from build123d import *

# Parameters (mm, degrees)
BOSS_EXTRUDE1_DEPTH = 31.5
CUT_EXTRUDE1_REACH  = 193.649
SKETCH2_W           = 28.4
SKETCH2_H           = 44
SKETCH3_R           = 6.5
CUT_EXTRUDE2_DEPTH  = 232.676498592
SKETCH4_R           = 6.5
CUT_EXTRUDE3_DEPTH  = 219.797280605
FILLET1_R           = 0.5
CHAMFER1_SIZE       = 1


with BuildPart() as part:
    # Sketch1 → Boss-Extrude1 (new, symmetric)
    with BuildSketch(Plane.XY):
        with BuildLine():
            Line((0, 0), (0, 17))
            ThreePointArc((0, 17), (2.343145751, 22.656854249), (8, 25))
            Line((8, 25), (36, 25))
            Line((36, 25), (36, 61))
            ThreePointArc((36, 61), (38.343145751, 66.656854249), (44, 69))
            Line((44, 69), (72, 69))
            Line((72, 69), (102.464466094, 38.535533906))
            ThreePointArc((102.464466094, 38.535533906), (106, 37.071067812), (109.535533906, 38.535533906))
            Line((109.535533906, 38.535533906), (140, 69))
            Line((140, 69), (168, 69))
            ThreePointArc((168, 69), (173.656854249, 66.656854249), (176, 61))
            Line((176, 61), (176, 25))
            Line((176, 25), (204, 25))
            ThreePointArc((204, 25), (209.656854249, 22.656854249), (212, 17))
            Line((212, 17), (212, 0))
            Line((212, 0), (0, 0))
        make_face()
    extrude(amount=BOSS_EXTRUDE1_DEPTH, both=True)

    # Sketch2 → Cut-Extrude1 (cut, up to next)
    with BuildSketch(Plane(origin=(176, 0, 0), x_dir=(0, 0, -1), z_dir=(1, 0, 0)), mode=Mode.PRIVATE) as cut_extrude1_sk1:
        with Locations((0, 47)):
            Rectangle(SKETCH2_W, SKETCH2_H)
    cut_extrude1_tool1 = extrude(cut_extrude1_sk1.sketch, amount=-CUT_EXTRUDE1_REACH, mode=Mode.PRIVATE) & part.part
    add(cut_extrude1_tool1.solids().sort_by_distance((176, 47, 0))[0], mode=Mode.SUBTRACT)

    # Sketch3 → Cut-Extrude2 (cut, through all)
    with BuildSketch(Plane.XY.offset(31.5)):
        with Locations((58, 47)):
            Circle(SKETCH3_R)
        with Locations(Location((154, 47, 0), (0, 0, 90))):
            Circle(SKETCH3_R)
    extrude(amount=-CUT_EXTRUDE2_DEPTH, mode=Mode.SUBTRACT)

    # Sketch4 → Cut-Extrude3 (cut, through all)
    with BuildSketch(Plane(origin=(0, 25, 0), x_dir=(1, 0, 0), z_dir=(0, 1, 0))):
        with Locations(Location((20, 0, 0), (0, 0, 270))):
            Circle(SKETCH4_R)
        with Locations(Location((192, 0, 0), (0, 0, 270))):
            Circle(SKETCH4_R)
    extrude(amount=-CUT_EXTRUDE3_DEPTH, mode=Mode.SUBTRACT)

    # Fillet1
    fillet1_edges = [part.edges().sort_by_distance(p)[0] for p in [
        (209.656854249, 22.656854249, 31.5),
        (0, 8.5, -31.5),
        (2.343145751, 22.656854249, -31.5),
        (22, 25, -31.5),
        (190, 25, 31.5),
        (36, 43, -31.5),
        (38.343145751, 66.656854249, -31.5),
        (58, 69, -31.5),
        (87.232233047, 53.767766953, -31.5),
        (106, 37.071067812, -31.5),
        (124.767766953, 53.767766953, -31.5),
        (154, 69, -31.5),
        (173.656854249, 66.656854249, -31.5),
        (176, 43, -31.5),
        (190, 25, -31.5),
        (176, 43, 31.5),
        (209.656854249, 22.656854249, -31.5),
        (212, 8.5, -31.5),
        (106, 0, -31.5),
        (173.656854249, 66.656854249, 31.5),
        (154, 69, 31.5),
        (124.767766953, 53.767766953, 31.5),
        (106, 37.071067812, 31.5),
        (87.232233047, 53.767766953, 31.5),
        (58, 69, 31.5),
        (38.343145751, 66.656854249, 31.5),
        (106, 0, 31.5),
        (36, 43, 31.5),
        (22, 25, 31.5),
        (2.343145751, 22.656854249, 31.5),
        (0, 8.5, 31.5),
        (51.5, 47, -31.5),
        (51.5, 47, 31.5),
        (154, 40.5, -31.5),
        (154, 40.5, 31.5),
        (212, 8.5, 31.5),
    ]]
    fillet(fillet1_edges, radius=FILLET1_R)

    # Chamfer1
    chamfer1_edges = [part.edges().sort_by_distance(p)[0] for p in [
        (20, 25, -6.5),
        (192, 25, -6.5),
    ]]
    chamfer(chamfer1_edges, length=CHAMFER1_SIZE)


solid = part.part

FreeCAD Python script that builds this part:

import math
import FreeCAD as App
import Part
import Sketcher

V = App.Vector


def edges_at(feature, points):
    """Names of the edges that pass closest to the given points."""
    edges = feature.Shape.Edges
    near = lambda p: min(range(len(edges)), key=lambda i: edges[i].distToShape(Part.Vertex(*p))[0])
    return sorted({f"Edge{near(p) + 1}" for p in points})


def add_polygon(sketch, points):
    """Adds a closed chain of lines whose ends are joined by coincident constraints."""
    first, n = sketch.GeometryCount, len(points)
    for a, b in zip(points, points[1:] + points[:1]):
        sketch.addGeometry(Part.LineSegment(App.Vector(*a, 0), App.Vector(*b, 0)), False)
    for i in range(n):
        sketch.addConstraint(Sketcher.Constraint("Coincident", first + i, 2, first + (i + 1) % n, 1))

doc = App.newDocument("Part")
params = doc.addObject("Spreadsheet::Sheet", "Params")
for row, (alias, value) in enumerate([
    ("sketch1_radius", "8 mm"),
    ("sketch1_radius2", "5 mm"),
    ("sketch1_width", "212 mm"),
    ("sketch1_width2", "28 mm"),
    ("sketch1_height", "17 mm"),
    ("pad1_length", "63 mm"),
    ("sketch2_width", "44 mm"),
    ("sketch2_height", "28.4 mm"),
    ("pocket1_length", "140 mm"),
    ("sketch3_diameter", "13 mm"),
    ("sketch4_diameter", "13 mm"),
    ("fillet_radius", "0.5 mm"),
    ("chamfer_size", "1 mm"),
], start=1):
    params.set(f"A{row}", alias)
    params.set(f"B{row}", "=" + value)
    params.setAlias(f"B{row}", alias)

body = doc.addObject("PartDesign::Body", "Body")

# Sketch on XY plane
sketch1 = body.newObject("Sketcher::SketchObject", "Sketch")
sketch1.AttachmentSupport = (doc.getObject("XY_Plane"), [""])
sketch1.MapMode = "FlatFace"
sketch1.addGeometry([
    Part.LineSegment(V(0, 17, 0), V(0, 0, 0)),  # 0
    Part.LineSegment(V(0, 0, 0), V(212, 0, 0)),  # 1
    Part.LineSegment(V(212, 0, 0), V(212, 17, 0)),  # 2
    Part.ArcOfCircle(Part.Circle(V(204, 17, 0), V(0, 0, 1), 8), math.radians(0), math.radians(90)),  # 3
    Part.LineSegment(V(204, 25, 0), V(176, 25, 0)),  # 4
    Part.LineSegment(V(176, 25, 0), V(176, 61, 0)),  # 5
    Part.ArcOfCircle(Part.Circle(V(168, 61, 0), V(0, 0, 1), 8), math.radians(0), math.radians(90)),  # 6
    Part.LineSegment(V(168, 69, 0), V(140, 69, 0)),  # 7
    Part.LineSegment(V(140, 69, 0), V(109.535534, 38.535534, 0)),  # 8
    Part.ArcOfCircle(Part.Circle(V(106, 42.071068, 0), V(0, 0, 1), 5), math.radians(-135), math.radians(-45)),  # 9
    Part.LineSegment(V(102.464466, 38.535534, 0), V(72, 69, 0)),  # 10
    Part.LineSegment(V(72, 69, 0), V(44, 69, 0)),  # 11
    Part.ArcOfCircle(Part.Circle(V(44, 61, 0), V(0, 0, 1), 8), math.radians(90), math.radians(180)),  # 12
    Part.LineSegment(V(36, 61, 0), V(36, 25, 0)),  # 13
    Part.LineSegment(V(36, 25, 0), V(8, 25, 0)),  # 14
    Part.ArcOfCircle(Part.Circle(V(8, 17, 0), V(0, 0, 1), 8), math.radians(90), math.radians(180)),  # 15
], False)
sketch1.addConstraint([
    Sketcher.Constraint("Coincident", 0, 2, 1, 1),
    Sketcher.Constraint("Coincident", 1, 2, 2, 1),
    Sketcher.Constraint("Tangent", 2, 2, 3, 1),
    Sketcher.Constraint("Tangent", 3, 2, 4, 1),
    Sketcher.Constraint("Coincident", 4, 2, 5, 1),
    Sketcher.Constraint("Tangent", 5, 2, 6, 1),
    Sketcher.Constraint("Tangent", 6, 2, 7, 1),
    Sketcher.Constraint("Coincident", 7, 2, 8, 1),
    Sketcher.Constraint("Tangent", 8, 2, 9, 2),
    Sketcher.Constraint("Tangent", 9, 1, 10, 1),
    Sketcher.Constraint("Coincident", 10, 2, 11, 1),
    Sketcher.Constraint("Tangent", 11, 2, 12, 1),
    Sketcher.Constraint("Tangent", 12, 2, 13, 1),
    Sketcher.Constraint("Coincident", 13, 2, 14, 1),
    Sketcher.Constraint("Tangent", 14, 2, 15, 1),
    Sketcher.Constraint("Tangent", 15, 2, 0, 1),
    Sketcher.Constraint("Vertical", 0),
    Sketcher.Constraint("Horizontal", 1),
    Sketcher.Constraint("Vertical", 2),
    Sketcher.Constraint("Horizontal", 4),
    Sketcher.Constraint("Vertical", 5),
    Sketcher.Constraint("Horizontal", 7),
    Sketcher.Constraint("Horizontal", 11),
    Sketcher.Constraint("Vertical", 13),
    Sketcher.Constraint("Horizontal", 14),
    Sketcher.Constraint("Coincident", 0, 2, -1, 1),
    Sketcher.Constraint("Equal", 3, 6),
    Sketcher.Constraint("Equal", 6, 12),
    Sketcher.Constraint("Equal", 12, 15),
    Sketcher.Constraint("Perpendicular", 8, 10),
    Sketcher.Constraint("Horizontal", 6, 3, 12, 3),
    Sketcher.Constraint("Horizontal", 3, 3, 15, 3),
    Sketcher.Constraint("Horizontal", 8, 2, 9, 1),
    Sketcher.Constraint("Equal", 4, 7),
    Sketcher.Constraint("Equal", 7, 11),
    Sketcher.Constraint("Equal", 11, 14),
    Sketcher.Constraint("Radius", 3, 8.0),
    Sketcher.Constraint("Radius", 9, 5.0),
    Sketcher.Constraint("DistanceX", 1, 1, 1, 2, 212.0),
    Sketcher.Constraint("DistanceX", 4, 2, 4, 1, 28.0),
    Sketcher.Constraint("DistanceY", 0, 2, 0, 1, 17.0),
    Sketcher.Constraint("DistanceY", 5, 1, 5, 2, 36.0),
])
sketch1.setExpression("Constraints[36]", "Params.sketch1_radius")
sketch1.setExpression("Constraints[37]", "Params.sketch1_radius2")
sketch1.setExpression("Constraints[38]", "Params.sketch1_width")
sketch1.setExpression("Constraints[39]", "Params.sketch1_width2")
sketch1.setExpression("Constraints[40]", "Params.sketch1_height")
pad1 = body.newObject("PartDesign::Pad", "Pad")
pad1.Profile = sketch1
pad1.setExpression("Length", "Params.pad1_length")
pad1.Midplane = True

# Sketch on YZ plane
sketch2 = body.newObject("Sketcher::SketchObject", "Sketch001")
sketch2.AttachmentSupport = (doc.getObject("YZ_Plane"), [""])
sketch2.MapMode = "FlatFace"
sketch2.AttachmentOffset = App.Placement(V(0, 0, 176), App.Rotation())
add_polygon(sketch2, [(69, 14.2), (25, 14.2), (25, -14.2), (69, -14.2)])  # lines 0-3
sketch2.addConstraint([
    Sketcher.Constraint("Horizontal", 0),
    Sketcher.Constraint("Vertical", 1),
    Sketcher.Constraint("Horizontal", 2),
    Sketcher.Constraint("Vertical", 3),
    Sketcher.Constraint("DistanceX", 0, 2, 0, 1, 44.0),
    Sketcher.Constraint("DistanceY", 1, 2, 1, 1, 28.4),
    Sketcher.Constraint("DistanceX", -1, 1, 0, 2, 25.0),
    Sketcher.Constraint("DistanceY", -1, 1, 0, 2, 14.2),
])
sketch2.setExpression("Constraints[8]", "Params.sketch2_width")
sketch2.setExpression("Constraints[9]", "Params.sketch2_height")
pocket1 = body.newObject("PartDesign::Pocket", "Pocket")
pocket1.Profile = sketch2
pocket1.setExpression("Length", "Params.pocket1_length")

# Sketch on XY plane
sketch3 = body.newObject("Sketcher::SketchObject", "Sketch002")
sketch3.AttachmentSupport = (doc.getObject("XY_Plane"), [""])
sketch3.MapMode = "FlatFace"
sketch3.AttachmentOffset = App.Placement(V(0, 0, 31.5), App.Rotation())
sketch3.addGeometry([
    Part.Circle(V(58, 47, 0), V(0, 0, 1), 6.5),
    Part.Circle(V(154, 47, 0), V(0, 0, 1), 6.5),
], False)
sketch3.addConstraint([
    Sketcher.Constraint("Equal", 0, 1),
    Sketcher.Constraint("Horizontal", 0, 3, 1, 3),
    Sketcher.Constraint("Diameter", 0, 13.0),
    Sketcher.Constraint("DistanceX", -1, 1, 0, 3, 58.0),
    Sketcher.Constraint("DistanceY", -1, 1, 0, 3, 47.0),
    Sketcher.Constraint("DistanceX", -1, 1, 1, 3, 154.0),
])
sketch3.setExpression("Constraints[2]", "Params.sketch3_diameter")
pocket2 = body.newObject("PartDesign::Pocket", "Pocket001")
pocket2.Profile = sketch3
pocket2.Type = "ThroughAll"

# Sketch on XZ plane
sketch4 = body.newObject("Sketcher::SketchObject", "Sketch003")
sketch4.AttachmentSupport = (doc.getObject("XZ_Plane"), [""])
sketch4.MapMode = "FlatFace"
sketch4.AttachmentOffset = App.Placement(V(0, 0, -25), App.Rotation())
sketch4.addGeometry([
    Part.Circle(V(20, 0, 0), V(0, 0, 1), 6.5),
    Part.Circle(V(192, 0, 0), V(0, 0, 1), 6.5),
], False)
sketch4.addConstraint([
    Sketcher.Constraint("Equal", 0, 1),
    Sketcher.Constraint("PointOnObject", 0, 3, -1),
    Sketcher.Constraint("PointOnObject", 1, 3, -1),
    Sketcher.Constraint("Diameter", 0, 13.0),
    Sketcher.Constraint("DistanceX", -1, 1, 0, 3, 20.0),
    Sketcher.Constraint("DistanceX", -1, 1, 1, 3, 192.0),
])
sketch4.setExpression("Constraints[3]", "Params.sketch4_diameter")
pocket3 = body.newObject("PartDesign::Pocket", "Pocket002")
pocket3.Profile = sketch4
pocket3.Type = "ThroughAll"
pocket3.Reversed = True
doc.recompute()

fillet = body.newObject("PartDesign::Fillet", "Fillet")
fillet.Base = (pocket3, edges_at(pocket3, [
    (209.657, 22.657, 31.5),
    (0, 8.5, -31.5),
    (2.343, 22.657, -31.5),
    (22, 25, -31.5),
    (190, 25, 31.5),
    (36, 43, -31.5),
    (38.343, 66.657, -31.5),
    (58, 69, -31.5),
    (87.232, 53.768, -31.5),
    (106, 37.071, -31.5),
    (124.768, 53.768, -31.5),
    (154, 69, -31.5),
    (173.657, 66.657, -31.5),
    (176, 43, -31.5),
    (190, 25, -31.5),
    (176, 43, 31.5),
    (209.657, 22.657, -31.5),
    (212, 8.5, -31.5),
    (106, 0, -31.5),
    (173.657, 66.657, 31.5),
    (154, 69, 31.5),
    (124.768, 53.768, 31.5),
    (106, 37.071, 31.5),
    (87.232, 53.768, 31.5),
    (58, 69, 31.5),
    (38.343, 66.657, 31.5),
    (106, 0, 31.5),
    (36, 43, 31.5),
    (22, 25, 31.5),
    (2.343, 22.657, 31.5),
    (0, 8.5, 31.5),
    (51.5, 47, -31.5),
    (51.5, 47, 31.5),
    (154, 40.5, -31.5),
    (154, 40.5, 31.5),
    (212, 8.5, 31.5),
]))
fillet.setExpression("Radius", "Params.fillet_radius")
doc.recompute()

chamfer = body.newObject("PartDesign::Chamfer", "Chamfer")
chamfer.Base = (fillet, edges_at(fillet, [(20, 25, -6.5), (192, 25, -6.5)]))
chamfer.setExpression("Size", "Params.chamfer_size")

doc.recompute()
